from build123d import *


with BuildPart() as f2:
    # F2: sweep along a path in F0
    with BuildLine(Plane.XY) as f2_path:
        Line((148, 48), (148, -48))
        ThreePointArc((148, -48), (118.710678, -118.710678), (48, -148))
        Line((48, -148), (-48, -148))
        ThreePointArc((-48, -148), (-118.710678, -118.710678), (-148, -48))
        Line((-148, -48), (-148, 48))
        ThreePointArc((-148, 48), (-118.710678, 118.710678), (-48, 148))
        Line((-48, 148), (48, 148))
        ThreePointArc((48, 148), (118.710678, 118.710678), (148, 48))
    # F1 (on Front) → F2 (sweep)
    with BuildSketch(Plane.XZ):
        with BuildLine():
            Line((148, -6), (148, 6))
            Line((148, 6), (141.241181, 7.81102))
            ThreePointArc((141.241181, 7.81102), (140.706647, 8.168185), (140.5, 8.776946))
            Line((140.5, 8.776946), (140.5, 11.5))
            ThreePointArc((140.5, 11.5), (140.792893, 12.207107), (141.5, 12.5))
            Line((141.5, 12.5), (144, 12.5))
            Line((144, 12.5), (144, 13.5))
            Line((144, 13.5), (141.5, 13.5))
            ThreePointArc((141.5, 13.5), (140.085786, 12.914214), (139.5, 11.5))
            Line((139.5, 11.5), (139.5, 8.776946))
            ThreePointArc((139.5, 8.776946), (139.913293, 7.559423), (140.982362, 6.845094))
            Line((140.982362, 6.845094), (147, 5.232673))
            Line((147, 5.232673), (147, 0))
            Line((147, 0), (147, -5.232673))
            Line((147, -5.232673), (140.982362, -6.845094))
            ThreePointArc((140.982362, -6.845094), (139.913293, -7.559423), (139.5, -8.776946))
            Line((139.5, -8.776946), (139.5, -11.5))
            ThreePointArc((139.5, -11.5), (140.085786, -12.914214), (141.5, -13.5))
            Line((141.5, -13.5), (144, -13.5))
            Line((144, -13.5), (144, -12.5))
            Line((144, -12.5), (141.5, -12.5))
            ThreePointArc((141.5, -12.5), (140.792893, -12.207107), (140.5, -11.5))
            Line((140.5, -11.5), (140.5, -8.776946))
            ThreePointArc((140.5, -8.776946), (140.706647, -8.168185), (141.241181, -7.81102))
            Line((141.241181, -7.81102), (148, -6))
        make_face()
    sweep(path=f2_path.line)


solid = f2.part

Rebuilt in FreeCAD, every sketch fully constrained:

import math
import FreeCAD as App
import Part
import Sketcher
from FreeCAD import Vector
Q = App.Units.Quantity

doc = App.newDocument("Part")
body = doc.addObject("PartDesign::Body", "Body")

sketch1 = body.newObject("Sketcher::SketchObject", "Sketch")
sketch1.AttachmentSupport = (doc.getObject("XZ_Plane"), [""])
sketch1.MapMode = "FlatFace"
sketch1.addGeometry([
    Part.LineSegment(Vector(148, -6, 0), Vector(148, 6, 0)),
    Part.LineSegment(Vector(148, 6, 0), Vector(141.2, 7.8, 0)),
    Part.ArcOfCircle(Part.Circle(Vector(141.5, 8.8, 0), Vector(0, 0, 1), 1), math.radians(-180), math.radians(-105)),
    Part.LineSegment(Vector(140.5, 8.8, 0), Vector(140.5, 11.5, 0)),
    Part.ArcOfCircle(Part.Circle(Vector(141.5, 11.5, 0), Vector(0, 0, 1), 1), math.radians(90), math.radians(180)),
    Part.LineSegment(Vector(141.5, 12.5, 0), Vector(144, 12.5, 0)),
    Part.LineSegment(Vector(144, 12.5, 0), Vector(144, 13.5, 0)),
    Part.LineSegment(Vector(144, 13.5, 0), Vector(141.5, 13.5, 0)),
    Part.ArcOfCircle(Part.Circle(Vector(141.5, 11.5, 0), Vector(0, 0, 1), 2), math.radians(90), math.radians(180)),
    Part.LineSegment(Vector(139.5, 11.5, 0), Vector(139.5, 8.8, 0)),
    Part.ArcOfCircle(Part.Circle(Vector(141.5, 8.8, 0), Vector(0, 0, 1), 2), math.radians(180), math.radians(255)),
    Part.LineSegment(Vector(141, 6.8, 0), Vector(147, 5.2, 0)),
    Part.LineSegment(Vector(147, 5.2, 0), Vector(147, -5.2, 0)),
    Part.LineSegment(Vector(147, -5.2, 0), Vector(141, -6.8, 0)),
    Part.ArcOfCircle(Part.Circle(Vector(141.5, -8.8, 0), Vector(0, 0, 1), 2), math.radians(105), math.radians(180)),
    Part.LineSegment(Vector(139.5, -8.8, 0), Vector(139.5, -11.5, 0)),
    Part.ArcOfCircle(Part.Circle(Vector(141.5, -11.5, 0), Vector(0, 0, 1), 2), math.radians(180), math.radians(270)),
    Part.LineSegment(Vector(141.5, -13.5, 0), Vector(144, -13.5, 0)),
    Part.LineSegment(Vector(144, -13.5, 0), Vector(144, -12.5, 0)),
    Part.LineSegment(Vector(144, -12.5, 0), Vector(141.5, -12.5, 0)),
    Part.ArcOfCircle(Part.Circle(Vector(141.5, -11.5, 0), Vector(0, 0, 1), 1), math.radians(180), math.radians(270)),
    Part.LineSegment(Vector(140.5, -11.5, 0), Vector(140.5, -8.8, 0)),
    Part.ArcOfCircle(Part.Circle(Vector(141.5, -8.8, 0), Vector(0, 0, 1), 1), math.radians(105), math.radians(180)),
    Part.LineSegment(Vector(141.2, -7.8, 0), Vector(148, -6, 0)),
], False)
sketch1.addConstraint([
    Sketcher.Constraint("Coincident", 0, 2, 1, 1),
    Sketcher.Constraint("Tangent", 1, 2, 2, 2),
    Sketcher.Constraint("Tangent", 2, 1, 3, 1),
    Sketcher.Constraint("Tangent", 3, 2, 4, 2),
    Sketcher.Constraint("Tangent", 4, 1, 5, 1),
    Sketcher.Constraint("Coincident", 5, 2, 6, 1),
    Sketcher.Constraint("Coincident", 6, 2, 7, 1),
    Sketcher.Constraint("Tangent", 7, 2, 8, 1),
    Sketcher.Constraint("Tangent", 8, 2, 9, 1),
    Sketcher.Constraint("Tangent", 9, 2, 10, 1),
    Sketcher.Constraint("Tangent", 10, 2, 11, 1),
    Sketcher.Constraint("Coincident", 11, 2, 12, 1),
    Sketcher.Constraint("Coincident", 12, 2, 13, 1),
    Sketcher.Constraint("Tangent", 13, 2, 14, 1),
    Sketcher.Constraint("Tangent", 14, 2, 15, 1),
    Sketcher.Constraint("Tangent", 15, 2, 16, 1),
    Sketcher.Constraint("Tangent", 16, 2, 17, 1),
    Sketcher.Constraint("Coincident", 17, 2, 18, 1),
    Sketcher.Constraint("Coincident", 18, 2, 19, 1),
    Sketcher.Constraint("Tangent", 19, 2, 20, 2),
    Sketcher.Constraint("Tangent", 20, 1, 21, 1),
    Sketcher.Constraint("Tangent", 21, 2, 22, 2),
    Sketcher.Constraint("Tangent", 22, 1, 23, 1),
    Sketcher.Constraint("Coincident", 23, 2, 0, 1),
    Sketcher.Constraint("Vertical", 0),
    Sketcher.Constraint("Vertical", 3),
    Sketcher.Constraint("Horizontal", 5),
    Sketcher.Constraint("Vertical", 6),
    Sketcher.Constraint("Horizontal", 7),
    Sketcher.Constraint("Vertical", 9),
    Sketcher.Constraint("Vertical", 12),
    Sketcher.Constraint("Vertical", 15),
    Sketcher.Constraint("Horizontal", 17),
    Sketcher.Constraint("Vertical", 18),
    Sketcher.Constraint("Horizontal", 19),
    Sketcher.Constraint("Vertical", 21),
    Sketcher.Constraint("Coincident", 8, 3, 4, 3),
    Sketcher.Constraint("Coincident", 10, 3, 2, 3),
    Sketcher.Constraint("Coincident", 20, 3, 16, 3),
    Sketcher.Constraint("Coincident", 22, 3, 14, 3),
    Sketcher.Constraint("Equal", 8, 10),
    Sketcher.Constraint("Equal", 10, 14),
    Sketcher.Constraint("Equal", 14, 16),
    Sketcher.Constraint("Equal", 4, 20),
    Sketcher.Constraint("Symmetric", 2, 3, 14, 3, -1),
    Sketcher.Constraint("Symmetric", 6, 2, 17, 2, -1),
    Sketcher.Constraint("Parallel", 1, 11),
    Sketcher.Constraint("Parallel", 13, 23),
    Sketcher.Constraint("Vertical", 10, 2, 13, 2),
    Sketcher.Constraint("Radius", 4, Q("0.999999 mm")),
    Sketcher.Constraint("Radius", 8, Q("1.999999 mm")),
    Sketcher.Constraint("DistanceY", 0, 1, 0, 2, Q("12 mm")),
    Sketcher.Constraint("Angle", 1, Q("165.000001 deg")),
    Sketcher.Constraint("DistanceX", 5, 1, 5, 2, Q("2.5 mm")),
    Sketcher.Constraint("DistanceX", -1, 1, 0, 2, Q("148 mm")),
    Sketcher.Constraint("DistanceX", -1, 1, 5, 2, Q("144 mm")),
    Sketcher.Constraint("DistanceX", -1, 1, 11, 2, Q("147 mm")),
    Sketcher.Constraint("DistanceY", 20, 3, 4, 3, Q("23.000001 mm")),
])

sketch2 = body.newObject("Sketcher::SketchObject", "Sketch001")
sketch2.AttachmentSupport = (doc.getObject("XY_Plane"), [""])
sketch2.MapMode = "FlatFace"
sketch2.addGeometry([
    Part.LineSegment(Vector(148, 48, 0), Vector(148, -48, 0)),
    Part.ArcOfCircle(Part.Circle(Vector(48, -48, 0), Vector(0, 0, 1), 100), math.radians(-90), math.radians(0)),
    Part.LineSegment(Vector(48, -148, 0), Vector(-48, -148, 0)),
    Part.ArcOfCircle(Part.Circle(Vector(-48, -48, 0), Vector(0, 0, 1), 100), math.radians(-180), math.radians(-90)),
    Part.LineSegment(Vector(-148, -48, 0), Vector(-148, 48, 0)),
    Part.ArcOfCircle(Part.Circle(Vector(-48, 48, 0), Vector(0, 0, 1), 100), math.radians(90), math.radians(180)),
    Part.LineSegment(Vector(-48, 148, 0), Vector(48, 148, 0)),
    Part.ArcOfCircle(Part.Circle(Vector(48, 48, 0), Vector(0, 0, 1), 100), math.radians(0), math.radians(90)),
], False)
sketch2.addConstraint([
    Sketcher.Constraint("Tangent", 0, 2, 1, 2),
    Sketcher.Constraint("Tangent", 1, 1, 2, 1),
    Sketcher.Constraint("Tangent", 2, 2, 3, 2),
    Sketcher.Constraint("Tangent", 3, 1, 4, 1),
    Sketcher.Constraint("Tangent", 4, 2, 5, 2),
    Sketcher.Constraint("Tangent", 5, 1, 6, 1),
    Sketcher.Constraint("Tangent", 6, 2, 7, 2),
    Sketcher.Constraint("Tangent", 7, 1, 0, 1),
    Sketcher.Constraint("Vertical", 0),
    Sketcher.Constraint("Horizontal", 2),
    Sketcher.Constraint("Vertical", 4),
    Sketcher.Constraint("Horizontal", 6),
    Sketcher.Constraint("Equal", 1, 3),
    Sketcher.Constraint("Equal", 3, 5),
    Sketcher.Constraint("Equal", 5, 7),
    Sketcher.Constraint("Symmetric", 1, 3, 5, 3, -1, 1),
    Sketcher.Constraint("Equal", 6, 0),
    Sketcher.Constraint("Radius", 1, Q("100 mm")),
    Sketcher.Constraint("DistanceX", 2, 2, 2, 1, Q("96 mm")),
])
doc.recompute()

additivepipe = body.newObject("PartDesign::AdditivePipe", "AdditivePipe")
additivepipe.Profile = sketch1
additivepipe.Spine = (sketch2, ["Edge1", "Edge2", "Edge3", "Edge4", "Edge5", "Edge6", "Edge7", "Edge8"])

doc.recompute()
